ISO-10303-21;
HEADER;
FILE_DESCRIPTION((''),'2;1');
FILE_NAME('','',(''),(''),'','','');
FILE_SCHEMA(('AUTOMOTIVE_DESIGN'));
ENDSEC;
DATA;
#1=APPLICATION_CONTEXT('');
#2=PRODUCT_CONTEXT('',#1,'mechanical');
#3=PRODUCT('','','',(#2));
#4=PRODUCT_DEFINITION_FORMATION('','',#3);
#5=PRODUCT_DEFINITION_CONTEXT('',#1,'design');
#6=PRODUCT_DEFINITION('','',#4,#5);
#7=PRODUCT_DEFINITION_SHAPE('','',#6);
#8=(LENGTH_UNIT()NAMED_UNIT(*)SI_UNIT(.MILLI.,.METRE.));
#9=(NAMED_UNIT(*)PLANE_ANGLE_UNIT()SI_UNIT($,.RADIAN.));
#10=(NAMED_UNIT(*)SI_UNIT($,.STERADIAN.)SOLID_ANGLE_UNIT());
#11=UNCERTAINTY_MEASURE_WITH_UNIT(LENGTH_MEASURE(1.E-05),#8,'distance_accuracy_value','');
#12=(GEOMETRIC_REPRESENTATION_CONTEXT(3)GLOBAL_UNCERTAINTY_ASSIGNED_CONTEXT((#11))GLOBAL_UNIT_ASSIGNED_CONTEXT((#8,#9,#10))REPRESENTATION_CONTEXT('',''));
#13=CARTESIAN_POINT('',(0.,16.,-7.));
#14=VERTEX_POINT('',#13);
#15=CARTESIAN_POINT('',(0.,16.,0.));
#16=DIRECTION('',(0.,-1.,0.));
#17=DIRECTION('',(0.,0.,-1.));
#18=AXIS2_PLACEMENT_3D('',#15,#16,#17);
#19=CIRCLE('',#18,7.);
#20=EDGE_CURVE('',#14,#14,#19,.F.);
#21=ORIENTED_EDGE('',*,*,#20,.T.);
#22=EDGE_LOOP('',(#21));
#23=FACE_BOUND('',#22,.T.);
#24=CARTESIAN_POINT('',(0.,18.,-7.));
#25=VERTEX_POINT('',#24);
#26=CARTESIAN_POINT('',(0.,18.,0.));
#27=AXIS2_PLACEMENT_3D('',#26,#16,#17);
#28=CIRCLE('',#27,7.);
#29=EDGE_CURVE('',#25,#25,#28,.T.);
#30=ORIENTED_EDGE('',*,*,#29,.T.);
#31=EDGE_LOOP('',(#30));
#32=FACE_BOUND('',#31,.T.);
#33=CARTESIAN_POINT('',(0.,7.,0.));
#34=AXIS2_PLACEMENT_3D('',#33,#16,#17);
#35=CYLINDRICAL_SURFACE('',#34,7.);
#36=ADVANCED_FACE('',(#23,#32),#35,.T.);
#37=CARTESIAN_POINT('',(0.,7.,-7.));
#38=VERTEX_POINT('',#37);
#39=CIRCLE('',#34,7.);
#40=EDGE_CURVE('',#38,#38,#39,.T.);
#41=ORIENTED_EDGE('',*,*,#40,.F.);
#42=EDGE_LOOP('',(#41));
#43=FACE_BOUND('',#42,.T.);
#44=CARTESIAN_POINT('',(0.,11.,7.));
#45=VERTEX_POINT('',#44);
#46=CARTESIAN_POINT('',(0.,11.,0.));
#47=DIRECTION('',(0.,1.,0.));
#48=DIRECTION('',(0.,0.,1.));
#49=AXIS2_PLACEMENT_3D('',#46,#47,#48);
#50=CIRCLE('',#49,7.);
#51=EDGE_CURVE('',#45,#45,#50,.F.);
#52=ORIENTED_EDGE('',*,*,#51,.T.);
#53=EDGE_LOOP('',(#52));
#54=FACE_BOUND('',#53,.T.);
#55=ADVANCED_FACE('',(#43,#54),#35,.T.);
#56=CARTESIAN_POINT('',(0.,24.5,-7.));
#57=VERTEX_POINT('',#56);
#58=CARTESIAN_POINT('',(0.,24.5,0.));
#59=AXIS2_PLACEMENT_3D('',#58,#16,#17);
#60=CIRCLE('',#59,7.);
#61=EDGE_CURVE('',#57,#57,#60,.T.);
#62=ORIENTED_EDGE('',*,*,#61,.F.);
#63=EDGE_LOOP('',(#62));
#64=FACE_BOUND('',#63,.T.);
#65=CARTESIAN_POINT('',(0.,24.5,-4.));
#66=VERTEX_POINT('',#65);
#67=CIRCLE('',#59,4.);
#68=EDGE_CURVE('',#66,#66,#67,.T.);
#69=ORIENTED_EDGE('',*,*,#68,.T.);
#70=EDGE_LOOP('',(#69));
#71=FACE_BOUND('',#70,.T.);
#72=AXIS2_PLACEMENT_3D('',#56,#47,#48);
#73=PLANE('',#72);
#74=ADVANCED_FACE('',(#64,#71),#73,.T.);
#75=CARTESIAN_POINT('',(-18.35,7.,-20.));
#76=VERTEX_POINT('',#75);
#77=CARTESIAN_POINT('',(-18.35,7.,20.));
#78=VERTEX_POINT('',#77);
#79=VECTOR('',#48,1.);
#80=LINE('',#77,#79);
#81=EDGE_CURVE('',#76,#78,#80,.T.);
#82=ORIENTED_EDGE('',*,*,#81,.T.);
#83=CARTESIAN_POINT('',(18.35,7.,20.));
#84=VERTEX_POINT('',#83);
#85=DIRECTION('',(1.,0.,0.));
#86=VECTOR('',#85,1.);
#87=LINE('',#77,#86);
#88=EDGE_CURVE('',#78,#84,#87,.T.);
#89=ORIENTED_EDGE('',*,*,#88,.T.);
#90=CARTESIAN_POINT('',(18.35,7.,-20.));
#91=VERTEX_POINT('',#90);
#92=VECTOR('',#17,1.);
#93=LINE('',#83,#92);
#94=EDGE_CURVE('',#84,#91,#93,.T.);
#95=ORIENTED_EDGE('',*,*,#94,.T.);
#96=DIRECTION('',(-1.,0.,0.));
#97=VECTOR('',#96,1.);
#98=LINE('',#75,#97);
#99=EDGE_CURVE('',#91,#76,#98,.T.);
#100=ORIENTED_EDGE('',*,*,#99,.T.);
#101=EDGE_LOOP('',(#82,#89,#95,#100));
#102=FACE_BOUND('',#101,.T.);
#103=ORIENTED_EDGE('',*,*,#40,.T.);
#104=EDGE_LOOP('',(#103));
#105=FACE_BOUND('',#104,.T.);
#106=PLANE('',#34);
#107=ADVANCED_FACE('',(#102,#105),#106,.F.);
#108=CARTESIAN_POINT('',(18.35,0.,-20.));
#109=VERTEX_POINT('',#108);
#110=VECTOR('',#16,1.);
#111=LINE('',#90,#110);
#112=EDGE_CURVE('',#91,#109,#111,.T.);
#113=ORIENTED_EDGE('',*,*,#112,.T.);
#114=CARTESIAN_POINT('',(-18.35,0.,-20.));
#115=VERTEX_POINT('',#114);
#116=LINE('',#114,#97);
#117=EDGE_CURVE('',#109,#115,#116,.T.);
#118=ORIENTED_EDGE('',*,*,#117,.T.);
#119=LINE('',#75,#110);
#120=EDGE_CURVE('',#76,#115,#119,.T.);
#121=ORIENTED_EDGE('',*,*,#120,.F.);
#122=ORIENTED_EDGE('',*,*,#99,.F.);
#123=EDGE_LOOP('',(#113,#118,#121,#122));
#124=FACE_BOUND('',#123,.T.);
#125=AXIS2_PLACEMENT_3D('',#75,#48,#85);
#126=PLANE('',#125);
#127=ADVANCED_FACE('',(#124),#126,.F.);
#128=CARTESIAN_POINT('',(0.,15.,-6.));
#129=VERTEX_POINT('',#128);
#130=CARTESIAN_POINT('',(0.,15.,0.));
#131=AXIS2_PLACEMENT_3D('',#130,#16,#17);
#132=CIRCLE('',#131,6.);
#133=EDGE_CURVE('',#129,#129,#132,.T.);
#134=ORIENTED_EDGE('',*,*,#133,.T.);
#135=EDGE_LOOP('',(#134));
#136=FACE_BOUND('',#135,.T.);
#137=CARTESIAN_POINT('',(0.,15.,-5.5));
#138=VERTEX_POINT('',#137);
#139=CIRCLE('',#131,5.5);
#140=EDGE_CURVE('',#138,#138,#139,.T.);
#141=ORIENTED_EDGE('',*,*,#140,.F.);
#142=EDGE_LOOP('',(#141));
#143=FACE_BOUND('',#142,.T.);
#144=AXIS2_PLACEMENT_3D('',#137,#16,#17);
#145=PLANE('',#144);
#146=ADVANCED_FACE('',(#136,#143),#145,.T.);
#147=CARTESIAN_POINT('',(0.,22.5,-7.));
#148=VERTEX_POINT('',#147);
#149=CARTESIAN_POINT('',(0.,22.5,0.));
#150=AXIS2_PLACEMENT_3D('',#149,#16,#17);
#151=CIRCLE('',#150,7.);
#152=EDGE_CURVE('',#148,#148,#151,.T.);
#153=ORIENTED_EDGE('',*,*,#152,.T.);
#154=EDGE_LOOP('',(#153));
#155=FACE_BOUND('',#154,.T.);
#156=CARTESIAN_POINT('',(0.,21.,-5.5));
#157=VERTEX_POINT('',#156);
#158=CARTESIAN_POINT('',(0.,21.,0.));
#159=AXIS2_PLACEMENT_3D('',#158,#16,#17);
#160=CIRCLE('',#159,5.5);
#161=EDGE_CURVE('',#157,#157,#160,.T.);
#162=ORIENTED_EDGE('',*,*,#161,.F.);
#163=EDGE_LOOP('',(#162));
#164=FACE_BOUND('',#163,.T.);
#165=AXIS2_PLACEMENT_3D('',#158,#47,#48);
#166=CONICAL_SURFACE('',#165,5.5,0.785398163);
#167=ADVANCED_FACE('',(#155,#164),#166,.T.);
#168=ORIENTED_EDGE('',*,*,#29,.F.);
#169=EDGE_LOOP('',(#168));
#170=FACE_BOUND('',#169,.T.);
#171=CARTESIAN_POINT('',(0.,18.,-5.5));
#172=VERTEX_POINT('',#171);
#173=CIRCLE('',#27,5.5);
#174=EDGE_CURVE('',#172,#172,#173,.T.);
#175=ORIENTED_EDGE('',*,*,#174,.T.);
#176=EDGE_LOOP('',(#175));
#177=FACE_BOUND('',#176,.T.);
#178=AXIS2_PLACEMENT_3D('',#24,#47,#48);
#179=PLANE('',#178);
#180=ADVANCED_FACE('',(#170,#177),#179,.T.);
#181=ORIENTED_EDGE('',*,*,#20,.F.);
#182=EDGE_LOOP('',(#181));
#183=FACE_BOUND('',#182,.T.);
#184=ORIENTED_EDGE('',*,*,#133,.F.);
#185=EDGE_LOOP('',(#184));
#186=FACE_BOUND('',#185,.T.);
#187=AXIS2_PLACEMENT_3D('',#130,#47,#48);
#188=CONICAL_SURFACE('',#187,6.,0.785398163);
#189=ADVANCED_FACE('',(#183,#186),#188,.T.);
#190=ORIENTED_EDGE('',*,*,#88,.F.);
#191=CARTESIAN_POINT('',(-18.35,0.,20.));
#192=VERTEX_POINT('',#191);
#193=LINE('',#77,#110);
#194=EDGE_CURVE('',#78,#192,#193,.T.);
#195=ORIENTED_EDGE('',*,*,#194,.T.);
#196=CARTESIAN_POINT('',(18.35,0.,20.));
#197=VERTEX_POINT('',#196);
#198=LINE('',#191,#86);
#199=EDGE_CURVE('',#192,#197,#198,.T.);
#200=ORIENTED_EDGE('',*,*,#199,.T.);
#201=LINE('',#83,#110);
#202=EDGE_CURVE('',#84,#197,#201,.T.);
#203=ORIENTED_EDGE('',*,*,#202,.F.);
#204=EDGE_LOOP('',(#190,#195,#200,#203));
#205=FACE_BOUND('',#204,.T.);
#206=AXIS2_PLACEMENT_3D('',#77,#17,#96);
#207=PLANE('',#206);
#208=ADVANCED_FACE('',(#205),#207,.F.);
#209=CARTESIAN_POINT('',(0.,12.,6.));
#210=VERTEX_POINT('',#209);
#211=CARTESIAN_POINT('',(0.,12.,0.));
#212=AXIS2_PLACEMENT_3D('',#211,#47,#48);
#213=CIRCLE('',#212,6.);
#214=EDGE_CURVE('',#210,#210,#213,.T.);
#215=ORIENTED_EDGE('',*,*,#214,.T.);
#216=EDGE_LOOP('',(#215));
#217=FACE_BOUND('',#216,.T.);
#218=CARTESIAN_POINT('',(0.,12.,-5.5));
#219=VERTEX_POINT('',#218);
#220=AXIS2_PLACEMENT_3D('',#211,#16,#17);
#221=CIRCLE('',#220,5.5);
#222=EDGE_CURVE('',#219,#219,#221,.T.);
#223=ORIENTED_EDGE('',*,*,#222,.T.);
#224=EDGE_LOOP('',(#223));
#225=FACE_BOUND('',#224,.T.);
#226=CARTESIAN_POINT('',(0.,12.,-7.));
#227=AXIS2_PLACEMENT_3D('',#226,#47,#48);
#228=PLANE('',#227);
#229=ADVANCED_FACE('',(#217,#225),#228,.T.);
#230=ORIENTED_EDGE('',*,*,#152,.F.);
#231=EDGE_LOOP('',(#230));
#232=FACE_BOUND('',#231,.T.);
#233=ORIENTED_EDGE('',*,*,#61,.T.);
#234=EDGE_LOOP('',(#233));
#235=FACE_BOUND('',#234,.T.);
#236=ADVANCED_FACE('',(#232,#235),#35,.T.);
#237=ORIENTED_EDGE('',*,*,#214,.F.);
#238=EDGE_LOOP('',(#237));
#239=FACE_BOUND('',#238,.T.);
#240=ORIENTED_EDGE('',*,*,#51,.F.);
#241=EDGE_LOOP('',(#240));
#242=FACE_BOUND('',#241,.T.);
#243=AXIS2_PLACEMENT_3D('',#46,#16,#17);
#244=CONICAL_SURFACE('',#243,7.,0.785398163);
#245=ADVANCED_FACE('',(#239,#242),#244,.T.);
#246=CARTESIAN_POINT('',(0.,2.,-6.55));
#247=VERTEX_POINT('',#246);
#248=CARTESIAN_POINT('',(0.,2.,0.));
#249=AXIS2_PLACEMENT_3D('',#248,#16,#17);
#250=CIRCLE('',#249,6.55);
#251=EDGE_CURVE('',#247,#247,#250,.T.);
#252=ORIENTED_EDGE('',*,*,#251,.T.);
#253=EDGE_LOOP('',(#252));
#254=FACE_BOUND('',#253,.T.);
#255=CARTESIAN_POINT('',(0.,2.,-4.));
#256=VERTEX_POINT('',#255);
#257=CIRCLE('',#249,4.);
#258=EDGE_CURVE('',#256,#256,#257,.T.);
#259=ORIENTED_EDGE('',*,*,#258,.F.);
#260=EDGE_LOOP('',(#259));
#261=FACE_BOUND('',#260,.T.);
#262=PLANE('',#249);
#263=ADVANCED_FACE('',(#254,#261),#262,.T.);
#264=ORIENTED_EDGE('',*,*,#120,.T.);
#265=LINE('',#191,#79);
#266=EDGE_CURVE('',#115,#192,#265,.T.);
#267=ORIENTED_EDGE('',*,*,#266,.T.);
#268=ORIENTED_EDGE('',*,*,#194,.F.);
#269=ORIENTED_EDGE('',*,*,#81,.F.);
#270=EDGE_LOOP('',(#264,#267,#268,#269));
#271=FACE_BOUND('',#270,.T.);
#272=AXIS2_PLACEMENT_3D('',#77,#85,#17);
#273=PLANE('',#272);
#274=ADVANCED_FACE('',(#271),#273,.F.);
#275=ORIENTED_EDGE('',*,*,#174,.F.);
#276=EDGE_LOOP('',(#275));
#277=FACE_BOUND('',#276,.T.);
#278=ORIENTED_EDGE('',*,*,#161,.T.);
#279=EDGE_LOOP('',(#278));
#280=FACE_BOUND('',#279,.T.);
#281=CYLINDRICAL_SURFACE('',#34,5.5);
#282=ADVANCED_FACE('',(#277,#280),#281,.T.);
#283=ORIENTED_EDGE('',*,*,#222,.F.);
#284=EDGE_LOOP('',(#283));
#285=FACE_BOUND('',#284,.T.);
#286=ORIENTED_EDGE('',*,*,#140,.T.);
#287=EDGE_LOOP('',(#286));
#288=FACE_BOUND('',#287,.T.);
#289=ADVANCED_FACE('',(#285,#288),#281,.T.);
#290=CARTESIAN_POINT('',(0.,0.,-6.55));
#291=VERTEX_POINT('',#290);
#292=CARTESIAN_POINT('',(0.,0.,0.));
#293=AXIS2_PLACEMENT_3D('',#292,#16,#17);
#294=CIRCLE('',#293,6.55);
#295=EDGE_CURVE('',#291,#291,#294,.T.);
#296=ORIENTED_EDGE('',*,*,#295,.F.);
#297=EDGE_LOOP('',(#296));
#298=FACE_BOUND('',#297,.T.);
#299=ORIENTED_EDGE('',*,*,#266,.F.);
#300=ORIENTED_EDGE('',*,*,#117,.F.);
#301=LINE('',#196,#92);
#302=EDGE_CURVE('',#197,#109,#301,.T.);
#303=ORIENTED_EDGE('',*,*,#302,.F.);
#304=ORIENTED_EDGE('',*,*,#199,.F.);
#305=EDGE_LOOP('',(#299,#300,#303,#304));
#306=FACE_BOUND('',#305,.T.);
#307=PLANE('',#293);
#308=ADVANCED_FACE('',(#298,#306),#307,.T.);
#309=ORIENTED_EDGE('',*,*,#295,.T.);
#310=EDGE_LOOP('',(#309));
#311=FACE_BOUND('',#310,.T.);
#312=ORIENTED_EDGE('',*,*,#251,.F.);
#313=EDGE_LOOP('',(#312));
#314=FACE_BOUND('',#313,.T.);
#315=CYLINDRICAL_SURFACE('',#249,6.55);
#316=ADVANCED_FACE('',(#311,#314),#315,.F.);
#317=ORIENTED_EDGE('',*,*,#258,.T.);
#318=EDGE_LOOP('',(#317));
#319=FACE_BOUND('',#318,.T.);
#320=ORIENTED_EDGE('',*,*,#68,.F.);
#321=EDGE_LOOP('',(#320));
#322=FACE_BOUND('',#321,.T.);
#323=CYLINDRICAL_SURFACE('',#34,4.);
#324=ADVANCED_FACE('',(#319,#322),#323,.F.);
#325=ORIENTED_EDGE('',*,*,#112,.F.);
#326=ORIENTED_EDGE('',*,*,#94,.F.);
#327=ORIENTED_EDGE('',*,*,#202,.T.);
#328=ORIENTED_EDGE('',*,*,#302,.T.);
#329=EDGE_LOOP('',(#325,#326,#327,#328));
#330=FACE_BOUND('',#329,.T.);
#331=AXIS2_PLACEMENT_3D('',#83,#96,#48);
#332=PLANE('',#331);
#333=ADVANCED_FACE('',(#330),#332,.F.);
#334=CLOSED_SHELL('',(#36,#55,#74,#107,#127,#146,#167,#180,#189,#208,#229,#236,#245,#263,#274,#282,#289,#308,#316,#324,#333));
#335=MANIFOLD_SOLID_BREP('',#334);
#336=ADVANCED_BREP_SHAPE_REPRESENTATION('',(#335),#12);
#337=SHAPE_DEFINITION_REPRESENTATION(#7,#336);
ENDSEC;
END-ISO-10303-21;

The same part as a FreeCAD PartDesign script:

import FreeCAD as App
import Part
import Sketcher
Q = App.Units.Quantity


def edges_at(feature, points):
    """Names of the edges that pass closest to the given points."""
    edges = feature.Shape.Edges
    near = lambda p: min(range(len(edges)), key=lambda i: edges[i].distToShape(Part.Vertex(*p))[0])
    return sorted({f"Edge{near(p) + 1}" for p in points})

doc = App.newDocument("Part")
body = doc.addObject("PartDesign::Body", "Body")

# Sketch on XZ plane
sketch1 = body.newObject("Sketcher::SketchObject", "Sketch")
sketch1.AttachmentSupport = (doc.getObject("XZ_Plane"), [""])
sketch1.MapMode = "FlatFace"
sketch1.addGeometry(Part.LineSegment(App.Vector(-18.4, -20, 0), App.Vector(-18.4, 20, 0)), False)
sketch1.addGeometry(Part.LineSegment(App.Vector(-18.4, 20, 0), App.Vector(18.4, 20, 0)), False)
sketch1.addGeometry(Part.LineSegment(App.Vector(18.4, 20, 0), App.Vector(18.4, -20, 0)), False)
sketch1.addGeometry(Part.LineSegment(App.Vector(18.4, -20, 0), App.Vector(-18.4, -20, 0)), False)
sketch1.addGeometry(Part.Circle(App.Vector(0, 0, 0), App.Vector(0, 0, 1), 4), False)
sketch1.addConstraint(Sketcher.Constraint("Coincident", 0, 2, 1, 1))
sketch1.addConstraint(Sketcher.Constraint("Coincident", 1, 2, 2, 1))
sketch1.addConstraint(Sketcher.Constraint("Coincident", 2, 2, 3, 1))
sketch1.addConstraint(Sketcher.Constraint("Coincident", 3, 2, 0, 1))
sketch1.addConstraint(Sketcher.Constraint("Vertical", 0))
sketch1.addConstraint(Sketcher.Constraint("Horizontal", 1))
sketch1.addConstraint(Sketcher.Constraint("Vertical", 2))
sketch1.addConstraint(Sketcher.Constraint("Horizontal", 3))
sketch1.addConstraint(Sketcher.Constraint("Coincident", 4, 3, -1, 1))
sketch1.addConstraint(Sketcher.Constraint("Symmetric", 0, 2, 2, 2, -1, 1))
sketch1.addConstraint(Sketcher.Constraint("Diameter", 4, Q("8 mm")))
sketch1.addConstraint(Sketcher.Constraint("DistanceY", 0, 1, 0, 2, Q("40 mm")))
sketch1.addConstraint(Sketcher.Constraint("DistanceX", 1, 1, 1, 2, Q("36.7 mm")))
pad1 = body.newObject("PartDesign::Pad", "Pad")
pad1.Profile = sketch1
pad1.Length = 7
pad1.Reversed = True

# Sketch on YZ plane
sketch2 = body.newObject("Sketcher::SketchObject", "Sketch001")
sketch2.AttachmentSupport = (doc.getObject("YZ_Plane"), [""])
sketch2.MapMode = "FlatFace"
sketch2.addGeometry(Part.LineSegment(App.Vector(7, -7, 0), App.Vector(12, -7, 0)), False)
sketch2.addGeometry(Part.LineSegment(App.Vector(12, -7, 0), App.Vector(12, -5.5, 0)), False)
sketch2.addGeometry(Part.LineSegment(App.Vector(12, -5.5, 0), App.Vector(15, -5.5, 0)), False)
sketch2.addGeometry(Part.LineSegment(App.Vector(15, -5.5, 0), App.Vector(15, -7, 0)), False)
sketch2.addGeometry(Part.LineSegment(App.Vector(15, -7, 0), App.Vector(18, -7, 0)), False)
sketch2.addGeometry(Part.LineSegment(App.Vector(18, -7, 0), App.Vector(18, -5.5, 0)), False)
sketch2.addGeometry(Part.LineSegment(App.Vector(18, -5.5, 0), App.Vector(21, -5.5, 0)), False)
sketch2.addGeometry(Part.LineSegment(App.Vector(21, -5.5, 0), App.Vector(22.5, -7, 0)), False)
sketch2.addGeometry(Part.LineSegment(App.Vector(22.5, -7, 0), App.Vector(24.5, -7, 0)), False)
sketch2.addGeometry(Part.LineSegment(App.Vector(24.5, -7, 0), App.Vector(24.5, -4, 0)), False)
sketch2.addGeometry(Part.LineSegment(App.Vector(24.5, -4, 0), App.Vector(7, -4, 0)), False)
sketch2.addGeometry(Part.LineSegment(App.Vector(7, -4, 0), App.Vector(7, -7, 0)), False)
sketch2.addConstraint(Sketcher.Constraint("Coincident", 0, 2, 1, 1))
sketch2.addConstraint(Sketcher.Constraint("Coincident", 1, 2, 2, 1))
sketch2.addConstraint(Sketcher.Constraint("Coincident", 2, 2, 3, 1))
sketch2.addConstraint(Sketcher.Constraint("Coincident", 3, 2, 4, 1))
sketch2.addConstraint(Sketcher.Constraint("Coincident", 4, 2, 5, 1))
sketch2.addConstraint(Sketcher.Constraint("Coincident", 5, 2, 6, 1))
sketch2.addConstraint(Sketcher.Constraint("Coincident", 6, 2, 7, 1))
sketch2.addConstraint(Sketcher.Constraint("Coincident", 7, 2, 8, 1))
sketch2.addConstraint(Sketcher.Constraint("Coincident", 8, 2, 9, 1))
sketch2.addConstraint(Sketcher.Constraint("Coincident", 9, 2, 10, 1))
sketch2.addConstraint(Sketcher.Constraint("Coincident", 10, 2, 11, 1))
sketch2.addConstraint(Sketcher.Constraint("Coincident", 11, 2, 0, 1))
sketch2.addConstraint(Sketcher.Constraint("Horizontal", 0))
sketch2.addConstraint(Sketcher.Constraint("Vertical", 1))
sketch2.addConstraint(Sketcher.Constraint("Horizontal", 2))
sketch2.addConstraint(Sketcher.Constraint("Vertical", 3))
sketch2.addConstraint(Sketcher.Constraint("Horizontal", 4))
sketch2.addConstraint(Sketcher.Constraint("Vertical", 5))
sketch2.addConstraint(Sketcher.Constraint("Horizontal", 6))
sketch2.addConstraint(Sketcher.Constraint("Horizontal", 8))
sketch2.addConstraint(Sketcher.Constraint("Vertical", 9))
sketch2.addConstraint(Sketcher.Constraint("Horizontal", 10))
sketch2.addConstraint(Sketcher.Constraint("Vertical", 11))
sketch2.addConstraint(Sketcher.Constraint("Horizontal", 0, 2, 3, 2))
sketch2.addConstraint(Sketcher.Constraint("Horizontal", 2, 2, 5, 2))
sketch2.addConstraint(Sketcher.Constraint("Horizontal", 4, 2, 7, 2))
sketch2.addConstraint(Sketcher.Constraint("Equal", 2, 4))
sketch2.addConstraint(Sketcher.Constraint("Equal", 4, 6))
sketch2.addConstraint(Sketcher.Constraint("Equal", 6, 9))
sketch2.addConstraint(Sketcher.Constraint("DistanceX", 0, 1, 0, 2, Q("5 mm")))
sketch2.addConstraint(Sketcher.Constraint("DistanceX", 2, 1, 2, 2, Q("3 mm")))
sketch2.addConstraint(Sketcher.Constraint("DistanceX", 8, 1, 8, 2, Q("2 mm")))
sketch2.addConstraint(Sketcher.Constraint("Angle", 7, Q("-45 deg")))
sketch2.addConstraint(Sketcher.Constraint("DistanceX", 10, 2, 10, 1, Q("17.5 mm")))
sketch2.addConstraint(Sketcher.Constraint("DistanceX", -1, 1, 0, 2, Q("12 mm")))
sketch2.addConstraint(Sketcher.Constraint("DistanceY", 0, 2, -1, 1, Q("7 mm")))
revolution = body.newObject("PartDesign::Revolution", "Revolution")
revolution.Profile = sketch2
revolution.ReferenceAxis = (sketch2, ["H_Axis"])
revolution.Angle = 360
doc.recompute()

chamfer = body.newObject("PartDesign::Chamfer", "Chamfer")
chamfer.Base = (revolution, edges_at(revolution, [(0, 12, 7), (0, 15, 7)]))
chamfer.Size = 1

# Sketch on XZ plane
sketch3 = body.newObject("Sketcher::SketchObject", "Sketch002")
sketch3.AttachmentSupport = (doc.getObject("XZ_Plane"), [""])
sketch3.MapMode = "FlatFace"
sketch3.addGeometry(Part.Circle(App.Vector(0, 0, 0), App.Vector(0, 0, 1), 7), False)
sketch3.addConstraint(Sketcher.Constraint("Coincident", 0, 3, -1, 1))
sketch3.addConstraint(Sketcher.Constraint("Diameter", 0, Q("13.1 mm")))
pocket1 = body.newObject("PartDesign::Pocket", "Pocket")
pocket1.Profile = sketch3
pocket1.Length = 2

doc.recompute()
